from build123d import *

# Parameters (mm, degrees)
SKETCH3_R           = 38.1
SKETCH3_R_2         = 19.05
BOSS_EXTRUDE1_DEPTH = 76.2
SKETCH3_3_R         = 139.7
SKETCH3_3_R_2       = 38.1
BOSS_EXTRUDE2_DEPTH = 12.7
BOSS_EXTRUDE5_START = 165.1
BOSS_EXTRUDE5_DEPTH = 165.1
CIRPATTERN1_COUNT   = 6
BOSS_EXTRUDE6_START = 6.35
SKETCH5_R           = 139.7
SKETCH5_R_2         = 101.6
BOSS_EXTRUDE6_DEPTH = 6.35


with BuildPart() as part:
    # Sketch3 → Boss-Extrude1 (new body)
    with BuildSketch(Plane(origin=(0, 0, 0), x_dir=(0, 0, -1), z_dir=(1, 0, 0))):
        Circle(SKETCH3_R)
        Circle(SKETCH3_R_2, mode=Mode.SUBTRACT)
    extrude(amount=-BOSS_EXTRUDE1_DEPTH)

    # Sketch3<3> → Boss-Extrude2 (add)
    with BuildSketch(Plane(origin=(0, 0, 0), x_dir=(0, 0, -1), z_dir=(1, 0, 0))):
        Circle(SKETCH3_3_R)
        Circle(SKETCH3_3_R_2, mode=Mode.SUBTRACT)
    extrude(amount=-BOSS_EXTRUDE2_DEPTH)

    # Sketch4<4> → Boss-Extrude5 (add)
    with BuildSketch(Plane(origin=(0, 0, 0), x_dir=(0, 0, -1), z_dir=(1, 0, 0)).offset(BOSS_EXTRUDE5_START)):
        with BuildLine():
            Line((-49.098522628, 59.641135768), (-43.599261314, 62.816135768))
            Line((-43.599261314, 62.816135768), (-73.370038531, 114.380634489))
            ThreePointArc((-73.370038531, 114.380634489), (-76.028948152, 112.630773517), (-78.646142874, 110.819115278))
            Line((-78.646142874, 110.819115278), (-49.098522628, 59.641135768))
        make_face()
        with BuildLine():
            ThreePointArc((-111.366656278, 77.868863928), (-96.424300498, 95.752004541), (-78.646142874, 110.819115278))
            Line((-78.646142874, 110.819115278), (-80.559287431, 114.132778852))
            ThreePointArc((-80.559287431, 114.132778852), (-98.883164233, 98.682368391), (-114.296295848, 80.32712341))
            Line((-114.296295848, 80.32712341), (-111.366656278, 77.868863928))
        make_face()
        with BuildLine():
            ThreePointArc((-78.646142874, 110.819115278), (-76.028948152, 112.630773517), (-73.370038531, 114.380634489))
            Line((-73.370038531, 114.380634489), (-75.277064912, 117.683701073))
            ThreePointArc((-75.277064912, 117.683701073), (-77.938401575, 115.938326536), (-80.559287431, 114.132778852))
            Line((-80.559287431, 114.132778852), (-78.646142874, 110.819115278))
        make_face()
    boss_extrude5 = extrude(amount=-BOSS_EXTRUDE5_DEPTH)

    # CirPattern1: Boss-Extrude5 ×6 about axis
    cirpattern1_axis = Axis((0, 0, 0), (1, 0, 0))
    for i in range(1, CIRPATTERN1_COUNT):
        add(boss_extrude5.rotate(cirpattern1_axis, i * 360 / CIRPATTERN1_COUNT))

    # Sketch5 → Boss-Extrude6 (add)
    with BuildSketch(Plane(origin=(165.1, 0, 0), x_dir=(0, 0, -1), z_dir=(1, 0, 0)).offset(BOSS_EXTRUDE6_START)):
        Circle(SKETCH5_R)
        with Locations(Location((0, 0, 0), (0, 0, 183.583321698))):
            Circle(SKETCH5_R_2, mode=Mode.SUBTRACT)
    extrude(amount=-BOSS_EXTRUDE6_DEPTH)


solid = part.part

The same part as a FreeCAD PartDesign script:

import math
import FreeCAD as App
import Part
import Sketcher
Q = App.Units.Quantity

doc = App.newDocument("Part")
body = doc.addObject("PartDesign::Body", "Body")

# Sketch on YZ plane
sketch1 = body.newObject("Sketcher::SketchObject", "Sketch")
sketch1.AttachmentSupport = (doc.getObject("YZ_Plane"), [""])
sketch1.MapMode = "FlatFace"
sketch1.addGeometry([
    Part.Circle(App.Vector(0, 0, 0), App.Vector(0, 0, 1), 38),
    Part.Circle(App.Vector(0, 0, 0), App.Vector(0, 0, 1), 19),
], False)
sketch1.addConstraint([
    Sketcher.Constraint("Coincident", 0, 3, -1, 1),
    Sketcher.Constraint("Coincident", 1, 3, -1, 1),
    Sketcher.Constraint("Diameter", 0, Q("3 in")),
    Sketcher.Constraint("Diameter", 1, Q("1.5 in")),
])
pad1 = body.newObject("PartDesign::Pad", "Pad")
pad1.Profile = sketch1
pad1.Length = Q("3 in")
pad1.Reversed = True

# Sketch on YZ plane
sketch2 = body.newObject("Sketcher::SketchObject", "Sketch001")
sketch2.AttachmentSupport = (doc.getObject("YZ_Plane"), [""])
sketch2.MapMode = "FlatFace"
sketch2.addGeometry([
    Part.Circle(App.Vector(0, 0, 0), App.Vector(0, 0, 1), 140),
    Part.Circle(App.Vector(0, 0, 0), App.Vector(0, 0, 1), 38),
], False)
sketch2.addConstraint([
    Sketcher.Constraint("Coincident", 0, 3, -1, 1),
    Sketcher.Constraint("Coincident", 1, 3, -1, 1),
    Sketcher.Constraint("Diameter", 0, Q("11 in")),
    Sketcher.Constraint("Diameter", 1, Q("3 in")),
])
pad2 = body.newObject("PartDesign::Pad", "Pad001")
pad2.Profile = sketch2
pad2.Length = Q("0.5 in")
pad2.Reversed = True

# Sketch on YZ plane
sketch3 = body.newObject("Sketcher::SketchObject", "Sketch002")
sketch3.AttachmentSupport = (doc.getObject("YZ_Plane"), [""])
sketch3.MapMode = "FlatFace"
sketch3.AttachmentOffset = App.Placement(App.Vector(0, 0, 6.5 * 25.4), App.Rotation())
sketch3.addGeometry([
    Part.LineSegment(App.Vector(59.6, 49.1, 0), App.Vector(62.8, 43.6, 0)),  # 0
    Part.LineSegment(App.Vector(62.8, 43.6, 0), App.Vector(114.4, 73.4, 0)),  # 1
    Part.LineSegment(App.Vector(114.4, 73.4, 0), App.Vector(117.7, 75.3, 0)),  # 2
    Part.ArcOfCircle(Part.Circle(App.Vector(0, 0, 0), App.Vector(0, 0, 1), 139.7), math.radians(32.61), math.radians(35.22)),  # 3
    Part.ArcOfCircle(Part.Circle(App.Vector(0, 0, 0), App.Vector(0, 0, 1), 139.7), math.radians(35.22), math.radians(54.9)),  # 4
    Part.LineSegment(App.Vector(80.3, 114.3, 0), App.Vector(77.9, 111.4, 0)),  # 5
    Part.ArcOfCircle(Part.Circle(App.Vector(0, 0, 0), App.Vector(0, 0, 1), 135.9), math.radians(35.36), math.radians(55.04)),  # 6
    Part.LineSegment(App.Vector(110.8, 78.6, 0), App.Vector(59.6, 49.1, 0)),  # 7
], False)
sketch3.addConstraint([
    Sketcher.Constraint("Coincident", 0, 2, 1, 1),
    Sketcher.Constraint("Coincident", 1, 2, 2, 1),
    Sketcher.Constraint("Coincident", 2, 2, 3, 1),
    Sketcher.Constraint("Tangent", 3, 2, 4, 1),
    Sketcher.Constraint("Coincident", 4, 2, 5, 1),
    Sketcher.Constraint("Coincident", 5, 2, 6, 2),
    Sketcher.Constraint("Coincident", 6, 1, 7, 1),
    Sketcher.Constraint("Coincident", 7, 2, 0, 1),
    Sketcher.Constraint("Coincident", 3, 3, -1, 1),
    Sketcher.Constraint("Coincident", 6, 3, -1, 1),
    Sketcher.Constraint("Equal", 3, 4),
    Sketcher.Constraint("Perpendicular", 0, 1),
    Sketcher.Constraint("Parallel", 1, 2),
    Sketcher.Constraint("Parallel", 2, 7),
    Sketcher.Constraint("Radius", 3, Q("5.4999999 in")),
    Sketcher.Constraint("Radius", 6, Q("5.35 in")),
    Sketcher.Constraint("Angle", 0, Q("-60 deg")),
    Sketcher.Constraint("Angle", 5, Q("-130 deg")),
    Sketcher.Constraint("Distance", 0, Q("0.25 in")),
    Sketcher.Constraint("DistanceX", 3, 2, 2, 2, Q("0.1398001 in")),
    Sketcher.Constraint("DistanceX", -1, 1, 2, 2, 117.683701),
    Sketcher.Constraint("DistanceX", 0, 2, 1, 2, 51.564499),
    Sketcher.Constraint("Distance", 7, 59.09524),
    Sketcher.Constraint("DistanceY", 3, 2, 4, 2, 33.737008),
])
pad3 = body.newObject("PartDesign::Pad", "Pad002")
pad3.Profile = sketch3
pad3.Length = Q("6.5 in")
pad3.Reversed = True
doc.recompute()

polarpattern = body.newObject("PartDesign::PolarPattern", "PolarPattern")
polarpattern.Originals = [pad3]
polarpattern.Axis = (doc.getObject("X_Axis"), [""])
polarpattern.Angle = 360
polarpattern.Occurrences = 6
body.Tip = polarpattern

# Sketch on YZ plane
sketch4 = body.newObject("Sketcher::SketchObject", "Sketch003")
sketch4.AttachmentSupport = (doc.getObject("YZ_Plane"), [""])
sketch4.MapMode = "FlatFace"
sketch4.AttachmentOffset = App.Placement(App.Vector(0, 0, 6.75 * 25.4), App.Rotation())
sketch4.addGeometry([
    Part.Circle(App.Vector(0, 0, 0), App.Vector(0, 0, 1), 140),
    Part.Circle(App.Vector(0, 0, 0), App.Vector(0, 0, 1), 102),
], False)
sketch4.addConstraint([
    Sketcher.Constraint("Coincident", 0, 3, -1, 1),
    Sketcher.Constraint("Coincident", 1, 3, -1, 1),
    Sketcher.Constraint("Diameter", 0, Q("11 in")),
    Sketcher.Constraint("Diameter", 1, Q("8 in")),
])
pad4 = body.newObject("PartDesign::Pad", "Pad003")
pad4.Profile = sketch4
pad4.Length = Q("0.25 in")
pad4.Reversed = True

doc.recompute()
